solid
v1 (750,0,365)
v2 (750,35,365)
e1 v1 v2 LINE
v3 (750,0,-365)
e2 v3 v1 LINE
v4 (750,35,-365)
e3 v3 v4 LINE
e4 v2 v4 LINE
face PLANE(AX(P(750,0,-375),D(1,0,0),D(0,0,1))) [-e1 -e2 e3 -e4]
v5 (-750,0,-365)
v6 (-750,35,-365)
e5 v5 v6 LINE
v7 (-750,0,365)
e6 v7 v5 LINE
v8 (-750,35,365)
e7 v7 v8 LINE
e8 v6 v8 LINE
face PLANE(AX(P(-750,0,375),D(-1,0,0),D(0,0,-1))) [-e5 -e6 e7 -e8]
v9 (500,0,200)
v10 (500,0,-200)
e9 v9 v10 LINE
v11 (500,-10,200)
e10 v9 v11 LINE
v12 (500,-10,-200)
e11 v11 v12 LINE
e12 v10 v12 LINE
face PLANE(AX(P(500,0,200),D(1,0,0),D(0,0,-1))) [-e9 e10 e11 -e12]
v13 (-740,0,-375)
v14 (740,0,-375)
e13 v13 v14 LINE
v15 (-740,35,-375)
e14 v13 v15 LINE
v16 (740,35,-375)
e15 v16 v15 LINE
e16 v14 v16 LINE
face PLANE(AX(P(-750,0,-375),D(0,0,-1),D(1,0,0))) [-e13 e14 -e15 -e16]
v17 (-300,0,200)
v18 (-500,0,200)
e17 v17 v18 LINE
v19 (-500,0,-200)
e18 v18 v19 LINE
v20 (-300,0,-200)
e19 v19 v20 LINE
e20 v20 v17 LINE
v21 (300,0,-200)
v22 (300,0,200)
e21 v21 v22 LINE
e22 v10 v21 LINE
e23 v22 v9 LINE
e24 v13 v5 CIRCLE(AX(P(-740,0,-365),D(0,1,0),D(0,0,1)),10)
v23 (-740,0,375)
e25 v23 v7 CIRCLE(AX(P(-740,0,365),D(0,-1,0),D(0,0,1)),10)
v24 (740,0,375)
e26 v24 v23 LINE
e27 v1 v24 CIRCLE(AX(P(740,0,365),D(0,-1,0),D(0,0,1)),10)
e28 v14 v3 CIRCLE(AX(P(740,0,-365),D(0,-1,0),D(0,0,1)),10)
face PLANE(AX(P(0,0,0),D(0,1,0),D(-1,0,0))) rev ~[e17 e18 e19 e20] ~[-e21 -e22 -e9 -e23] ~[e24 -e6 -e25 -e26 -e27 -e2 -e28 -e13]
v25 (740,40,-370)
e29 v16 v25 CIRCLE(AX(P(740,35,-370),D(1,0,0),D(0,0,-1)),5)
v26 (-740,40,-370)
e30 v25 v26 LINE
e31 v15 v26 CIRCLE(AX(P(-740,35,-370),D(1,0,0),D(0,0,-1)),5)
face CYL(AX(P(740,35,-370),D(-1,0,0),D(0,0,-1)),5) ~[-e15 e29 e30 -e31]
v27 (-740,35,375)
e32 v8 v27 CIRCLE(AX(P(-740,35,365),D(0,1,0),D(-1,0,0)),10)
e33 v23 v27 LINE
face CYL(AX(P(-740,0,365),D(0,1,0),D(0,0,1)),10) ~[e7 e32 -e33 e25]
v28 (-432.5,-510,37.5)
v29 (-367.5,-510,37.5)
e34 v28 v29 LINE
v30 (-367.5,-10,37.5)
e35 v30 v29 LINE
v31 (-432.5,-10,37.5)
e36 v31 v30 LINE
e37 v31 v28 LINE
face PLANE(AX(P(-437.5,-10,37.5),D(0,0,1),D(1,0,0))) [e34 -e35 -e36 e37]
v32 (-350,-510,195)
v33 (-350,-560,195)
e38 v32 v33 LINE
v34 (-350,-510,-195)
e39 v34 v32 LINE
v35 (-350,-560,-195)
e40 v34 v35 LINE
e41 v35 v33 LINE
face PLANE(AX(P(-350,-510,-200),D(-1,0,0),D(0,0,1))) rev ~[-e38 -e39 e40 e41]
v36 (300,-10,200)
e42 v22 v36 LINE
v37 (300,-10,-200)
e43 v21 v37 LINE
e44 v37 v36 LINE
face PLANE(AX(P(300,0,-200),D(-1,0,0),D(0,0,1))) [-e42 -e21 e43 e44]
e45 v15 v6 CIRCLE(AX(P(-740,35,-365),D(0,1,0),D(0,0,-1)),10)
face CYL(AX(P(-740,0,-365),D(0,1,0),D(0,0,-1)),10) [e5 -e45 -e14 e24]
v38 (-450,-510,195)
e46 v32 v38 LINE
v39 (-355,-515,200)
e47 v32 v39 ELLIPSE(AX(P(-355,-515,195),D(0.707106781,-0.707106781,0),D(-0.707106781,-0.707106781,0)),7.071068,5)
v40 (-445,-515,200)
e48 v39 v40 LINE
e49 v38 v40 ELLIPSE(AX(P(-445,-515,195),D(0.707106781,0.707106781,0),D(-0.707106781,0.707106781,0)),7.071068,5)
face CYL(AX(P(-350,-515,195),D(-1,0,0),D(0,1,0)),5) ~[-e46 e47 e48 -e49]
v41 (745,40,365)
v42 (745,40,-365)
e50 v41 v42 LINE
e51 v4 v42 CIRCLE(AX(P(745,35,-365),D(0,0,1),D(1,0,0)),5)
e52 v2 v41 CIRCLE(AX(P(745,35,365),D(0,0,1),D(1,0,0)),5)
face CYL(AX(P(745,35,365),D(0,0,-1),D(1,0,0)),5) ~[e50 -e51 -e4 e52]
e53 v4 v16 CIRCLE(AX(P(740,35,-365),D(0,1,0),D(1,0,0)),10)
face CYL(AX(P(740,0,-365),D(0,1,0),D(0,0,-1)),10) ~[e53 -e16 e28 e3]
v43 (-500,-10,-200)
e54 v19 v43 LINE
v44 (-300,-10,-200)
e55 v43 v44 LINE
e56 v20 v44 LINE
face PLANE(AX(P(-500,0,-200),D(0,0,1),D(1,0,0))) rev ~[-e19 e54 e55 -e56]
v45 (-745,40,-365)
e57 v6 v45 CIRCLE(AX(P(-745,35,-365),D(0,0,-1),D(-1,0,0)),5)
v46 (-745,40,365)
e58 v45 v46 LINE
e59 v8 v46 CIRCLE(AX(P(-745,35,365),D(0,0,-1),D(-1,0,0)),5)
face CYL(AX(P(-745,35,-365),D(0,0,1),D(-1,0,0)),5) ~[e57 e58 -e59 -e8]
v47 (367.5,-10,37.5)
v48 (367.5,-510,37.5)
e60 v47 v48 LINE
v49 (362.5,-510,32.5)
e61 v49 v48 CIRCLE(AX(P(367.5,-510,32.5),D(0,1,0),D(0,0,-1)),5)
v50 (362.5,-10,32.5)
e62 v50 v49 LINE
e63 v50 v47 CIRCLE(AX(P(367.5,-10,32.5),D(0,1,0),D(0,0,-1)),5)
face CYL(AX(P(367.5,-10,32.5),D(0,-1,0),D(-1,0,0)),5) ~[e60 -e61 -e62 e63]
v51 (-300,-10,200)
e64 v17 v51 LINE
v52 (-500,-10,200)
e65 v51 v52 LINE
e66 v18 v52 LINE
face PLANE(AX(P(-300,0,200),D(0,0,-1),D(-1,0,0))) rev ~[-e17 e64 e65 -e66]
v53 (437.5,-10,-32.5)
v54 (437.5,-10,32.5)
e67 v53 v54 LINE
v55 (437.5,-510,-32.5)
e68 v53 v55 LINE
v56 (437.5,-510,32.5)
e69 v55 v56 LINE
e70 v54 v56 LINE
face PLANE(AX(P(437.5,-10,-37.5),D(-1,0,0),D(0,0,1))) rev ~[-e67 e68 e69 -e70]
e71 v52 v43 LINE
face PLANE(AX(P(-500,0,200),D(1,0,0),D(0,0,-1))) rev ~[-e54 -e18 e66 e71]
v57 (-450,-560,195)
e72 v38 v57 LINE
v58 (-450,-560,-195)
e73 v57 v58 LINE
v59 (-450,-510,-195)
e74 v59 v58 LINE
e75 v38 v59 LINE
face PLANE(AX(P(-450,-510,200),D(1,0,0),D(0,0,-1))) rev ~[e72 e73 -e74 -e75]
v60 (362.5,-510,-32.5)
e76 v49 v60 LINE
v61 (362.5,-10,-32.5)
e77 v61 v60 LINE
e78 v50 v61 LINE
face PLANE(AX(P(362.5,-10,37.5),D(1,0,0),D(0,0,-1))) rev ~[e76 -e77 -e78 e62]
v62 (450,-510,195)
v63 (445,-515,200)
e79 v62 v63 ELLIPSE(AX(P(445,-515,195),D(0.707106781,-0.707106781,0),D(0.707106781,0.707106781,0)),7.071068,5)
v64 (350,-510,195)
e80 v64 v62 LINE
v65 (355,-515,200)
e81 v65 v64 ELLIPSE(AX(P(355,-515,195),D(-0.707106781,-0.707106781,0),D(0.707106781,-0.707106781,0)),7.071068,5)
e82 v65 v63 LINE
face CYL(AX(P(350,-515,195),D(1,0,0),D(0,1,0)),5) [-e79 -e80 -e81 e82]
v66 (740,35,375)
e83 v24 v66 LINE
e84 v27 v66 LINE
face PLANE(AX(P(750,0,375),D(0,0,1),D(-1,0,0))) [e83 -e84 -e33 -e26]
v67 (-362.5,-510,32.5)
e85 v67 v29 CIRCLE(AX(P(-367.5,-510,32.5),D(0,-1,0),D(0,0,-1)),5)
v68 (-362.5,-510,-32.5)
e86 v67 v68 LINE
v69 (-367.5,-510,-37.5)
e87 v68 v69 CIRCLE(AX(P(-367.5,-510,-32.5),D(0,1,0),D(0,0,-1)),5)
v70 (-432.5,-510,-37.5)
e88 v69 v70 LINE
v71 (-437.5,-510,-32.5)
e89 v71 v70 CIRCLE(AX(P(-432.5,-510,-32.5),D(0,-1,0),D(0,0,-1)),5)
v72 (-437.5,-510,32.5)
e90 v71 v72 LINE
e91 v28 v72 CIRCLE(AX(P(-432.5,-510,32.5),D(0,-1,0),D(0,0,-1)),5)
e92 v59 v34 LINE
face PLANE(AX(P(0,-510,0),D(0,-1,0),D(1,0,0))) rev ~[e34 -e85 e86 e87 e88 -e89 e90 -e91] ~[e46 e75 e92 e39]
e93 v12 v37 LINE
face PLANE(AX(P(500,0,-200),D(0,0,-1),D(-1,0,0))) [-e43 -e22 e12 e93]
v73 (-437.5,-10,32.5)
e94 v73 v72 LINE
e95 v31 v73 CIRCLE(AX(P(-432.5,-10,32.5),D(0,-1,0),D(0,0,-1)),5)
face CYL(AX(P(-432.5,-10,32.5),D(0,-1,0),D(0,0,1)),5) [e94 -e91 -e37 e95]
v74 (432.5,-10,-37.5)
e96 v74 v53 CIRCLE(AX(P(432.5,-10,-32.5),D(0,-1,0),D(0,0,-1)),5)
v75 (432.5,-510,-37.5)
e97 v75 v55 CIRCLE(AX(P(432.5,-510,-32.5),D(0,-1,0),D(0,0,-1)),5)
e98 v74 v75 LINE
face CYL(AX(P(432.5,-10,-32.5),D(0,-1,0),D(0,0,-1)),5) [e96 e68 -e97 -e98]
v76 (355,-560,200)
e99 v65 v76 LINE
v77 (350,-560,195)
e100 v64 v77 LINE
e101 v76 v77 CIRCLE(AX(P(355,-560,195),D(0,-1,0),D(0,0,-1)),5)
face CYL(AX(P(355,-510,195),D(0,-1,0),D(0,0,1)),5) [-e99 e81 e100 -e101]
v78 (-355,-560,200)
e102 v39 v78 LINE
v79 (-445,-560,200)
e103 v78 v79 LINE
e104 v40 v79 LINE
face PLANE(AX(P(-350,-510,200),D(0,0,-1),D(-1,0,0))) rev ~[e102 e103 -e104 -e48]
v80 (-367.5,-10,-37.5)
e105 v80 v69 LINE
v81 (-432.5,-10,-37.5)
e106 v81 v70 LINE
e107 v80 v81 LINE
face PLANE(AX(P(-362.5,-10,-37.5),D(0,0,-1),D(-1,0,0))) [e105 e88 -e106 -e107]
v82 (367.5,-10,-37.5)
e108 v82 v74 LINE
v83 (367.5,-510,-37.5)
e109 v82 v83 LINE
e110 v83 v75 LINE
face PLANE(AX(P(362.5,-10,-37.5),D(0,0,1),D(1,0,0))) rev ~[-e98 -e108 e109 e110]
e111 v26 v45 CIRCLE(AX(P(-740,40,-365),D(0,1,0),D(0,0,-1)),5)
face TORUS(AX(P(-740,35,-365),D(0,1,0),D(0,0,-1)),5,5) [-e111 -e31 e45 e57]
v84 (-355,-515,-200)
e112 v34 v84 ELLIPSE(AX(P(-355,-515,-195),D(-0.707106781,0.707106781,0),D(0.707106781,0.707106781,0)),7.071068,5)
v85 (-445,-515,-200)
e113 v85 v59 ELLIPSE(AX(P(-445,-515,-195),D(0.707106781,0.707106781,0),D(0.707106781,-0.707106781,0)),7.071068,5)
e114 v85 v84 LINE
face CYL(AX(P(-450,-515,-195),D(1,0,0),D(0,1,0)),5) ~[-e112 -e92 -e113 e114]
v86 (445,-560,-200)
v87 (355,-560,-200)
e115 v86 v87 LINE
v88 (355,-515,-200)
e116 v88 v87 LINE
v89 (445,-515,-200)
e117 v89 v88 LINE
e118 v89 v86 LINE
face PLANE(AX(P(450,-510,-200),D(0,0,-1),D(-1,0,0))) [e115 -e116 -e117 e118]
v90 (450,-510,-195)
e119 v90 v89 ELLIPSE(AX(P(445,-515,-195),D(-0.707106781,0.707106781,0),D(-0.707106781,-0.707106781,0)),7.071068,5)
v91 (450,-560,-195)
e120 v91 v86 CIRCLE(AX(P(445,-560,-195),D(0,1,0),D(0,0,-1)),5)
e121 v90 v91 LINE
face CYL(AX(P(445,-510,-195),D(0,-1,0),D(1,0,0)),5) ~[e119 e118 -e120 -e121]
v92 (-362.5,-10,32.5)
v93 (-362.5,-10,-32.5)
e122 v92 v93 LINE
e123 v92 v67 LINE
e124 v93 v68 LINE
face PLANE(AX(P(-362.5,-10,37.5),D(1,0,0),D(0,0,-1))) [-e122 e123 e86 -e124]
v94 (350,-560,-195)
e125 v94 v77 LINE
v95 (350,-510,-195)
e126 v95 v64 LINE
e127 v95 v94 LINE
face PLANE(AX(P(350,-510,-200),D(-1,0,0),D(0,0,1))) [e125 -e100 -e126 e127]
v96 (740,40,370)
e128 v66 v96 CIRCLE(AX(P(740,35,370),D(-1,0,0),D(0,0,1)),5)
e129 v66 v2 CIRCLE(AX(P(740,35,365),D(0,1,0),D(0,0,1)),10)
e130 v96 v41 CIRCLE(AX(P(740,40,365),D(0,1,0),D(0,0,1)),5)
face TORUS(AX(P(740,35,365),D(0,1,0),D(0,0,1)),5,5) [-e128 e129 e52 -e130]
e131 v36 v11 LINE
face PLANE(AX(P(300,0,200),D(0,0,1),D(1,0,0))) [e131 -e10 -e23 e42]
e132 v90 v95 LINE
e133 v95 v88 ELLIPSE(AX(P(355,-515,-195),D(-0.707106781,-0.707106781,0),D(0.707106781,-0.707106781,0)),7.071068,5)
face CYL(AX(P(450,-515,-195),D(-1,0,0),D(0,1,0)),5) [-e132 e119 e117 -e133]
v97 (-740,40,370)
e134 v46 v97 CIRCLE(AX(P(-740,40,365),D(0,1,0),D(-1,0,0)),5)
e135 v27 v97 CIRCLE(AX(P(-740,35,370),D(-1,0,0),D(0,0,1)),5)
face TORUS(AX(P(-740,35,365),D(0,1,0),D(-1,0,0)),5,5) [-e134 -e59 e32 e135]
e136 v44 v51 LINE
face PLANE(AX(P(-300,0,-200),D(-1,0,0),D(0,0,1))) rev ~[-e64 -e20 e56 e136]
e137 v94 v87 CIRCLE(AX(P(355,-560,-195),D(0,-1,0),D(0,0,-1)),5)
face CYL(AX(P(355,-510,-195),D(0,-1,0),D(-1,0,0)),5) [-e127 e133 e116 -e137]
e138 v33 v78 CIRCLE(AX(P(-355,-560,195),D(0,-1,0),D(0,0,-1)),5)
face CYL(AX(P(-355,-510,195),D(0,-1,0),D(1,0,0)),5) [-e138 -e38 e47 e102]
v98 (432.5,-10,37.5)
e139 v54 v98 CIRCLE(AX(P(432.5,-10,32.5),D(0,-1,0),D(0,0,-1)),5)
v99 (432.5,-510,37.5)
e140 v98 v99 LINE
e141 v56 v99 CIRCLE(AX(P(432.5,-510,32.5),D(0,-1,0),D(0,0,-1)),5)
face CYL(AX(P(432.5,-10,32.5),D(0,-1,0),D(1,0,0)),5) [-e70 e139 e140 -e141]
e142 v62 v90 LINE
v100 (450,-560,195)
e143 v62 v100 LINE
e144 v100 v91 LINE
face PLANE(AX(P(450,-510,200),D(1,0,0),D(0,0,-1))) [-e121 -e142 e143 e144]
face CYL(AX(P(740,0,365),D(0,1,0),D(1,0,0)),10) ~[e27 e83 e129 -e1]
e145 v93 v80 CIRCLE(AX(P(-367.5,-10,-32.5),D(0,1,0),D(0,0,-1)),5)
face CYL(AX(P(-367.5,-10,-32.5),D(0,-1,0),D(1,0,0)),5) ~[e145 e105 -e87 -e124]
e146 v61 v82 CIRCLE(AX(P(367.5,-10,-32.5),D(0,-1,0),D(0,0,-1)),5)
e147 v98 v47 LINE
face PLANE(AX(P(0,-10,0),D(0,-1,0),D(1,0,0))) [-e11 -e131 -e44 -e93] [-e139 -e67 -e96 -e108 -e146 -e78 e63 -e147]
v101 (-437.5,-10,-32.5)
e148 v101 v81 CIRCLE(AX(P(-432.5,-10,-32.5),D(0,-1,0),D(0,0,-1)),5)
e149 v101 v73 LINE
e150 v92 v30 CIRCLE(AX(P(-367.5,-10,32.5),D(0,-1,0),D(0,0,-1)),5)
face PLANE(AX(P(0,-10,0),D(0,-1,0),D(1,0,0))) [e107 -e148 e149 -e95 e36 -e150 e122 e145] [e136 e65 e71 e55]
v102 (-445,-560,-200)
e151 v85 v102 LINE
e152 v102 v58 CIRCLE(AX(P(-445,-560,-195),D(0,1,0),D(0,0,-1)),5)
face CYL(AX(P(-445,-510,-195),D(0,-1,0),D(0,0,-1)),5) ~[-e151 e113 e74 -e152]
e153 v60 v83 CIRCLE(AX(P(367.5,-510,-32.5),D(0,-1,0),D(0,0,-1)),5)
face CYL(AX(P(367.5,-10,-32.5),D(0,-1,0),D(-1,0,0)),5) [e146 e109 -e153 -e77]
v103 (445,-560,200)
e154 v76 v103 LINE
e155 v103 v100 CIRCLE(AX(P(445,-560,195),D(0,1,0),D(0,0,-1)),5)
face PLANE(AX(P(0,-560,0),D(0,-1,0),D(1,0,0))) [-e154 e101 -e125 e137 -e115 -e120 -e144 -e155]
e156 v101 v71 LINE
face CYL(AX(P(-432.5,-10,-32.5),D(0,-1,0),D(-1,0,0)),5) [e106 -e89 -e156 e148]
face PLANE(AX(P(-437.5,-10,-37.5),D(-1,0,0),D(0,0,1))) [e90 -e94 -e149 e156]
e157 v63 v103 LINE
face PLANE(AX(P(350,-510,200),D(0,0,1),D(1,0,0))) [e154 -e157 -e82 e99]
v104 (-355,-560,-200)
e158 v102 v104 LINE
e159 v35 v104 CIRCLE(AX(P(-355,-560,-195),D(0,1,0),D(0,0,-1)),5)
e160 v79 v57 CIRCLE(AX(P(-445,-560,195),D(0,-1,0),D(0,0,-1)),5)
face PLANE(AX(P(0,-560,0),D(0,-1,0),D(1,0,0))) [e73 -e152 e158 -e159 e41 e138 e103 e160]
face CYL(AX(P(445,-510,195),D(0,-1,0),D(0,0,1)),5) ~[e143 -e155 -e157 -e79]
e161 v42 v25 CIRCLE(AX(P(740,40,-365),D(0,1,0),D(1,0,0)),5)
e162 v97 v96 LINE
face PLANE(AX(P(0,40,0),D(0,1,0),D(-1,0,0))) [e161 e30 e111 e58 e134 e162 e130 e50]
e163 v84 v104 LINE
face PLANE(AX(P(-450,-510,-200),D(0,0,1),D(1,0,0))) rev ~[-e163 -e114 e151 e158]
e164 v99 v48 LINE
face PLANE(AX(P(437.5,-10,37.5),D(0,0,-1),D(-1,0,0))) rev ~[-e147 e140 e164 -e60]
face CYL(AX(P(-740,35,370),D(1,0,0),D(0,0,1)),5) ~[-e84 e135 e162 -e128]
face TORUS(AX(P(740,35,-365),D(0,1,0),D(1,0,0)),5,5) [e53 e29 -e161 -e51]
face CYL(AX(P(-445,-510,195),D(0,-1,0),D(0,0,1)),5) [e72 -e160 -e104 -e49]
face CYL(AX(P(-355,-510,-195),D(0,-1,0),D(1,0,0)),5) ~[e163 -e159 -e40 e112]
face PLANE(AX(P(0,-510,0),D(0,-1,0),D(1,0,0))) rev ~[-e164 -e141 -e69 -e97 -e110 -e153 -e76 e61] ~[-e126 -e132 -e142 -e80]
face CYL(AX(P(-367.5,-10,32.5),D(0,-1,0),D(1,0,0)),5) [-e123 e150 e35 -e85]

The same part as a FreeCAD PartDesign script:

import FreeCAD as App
import Part
import Sketcher

V = App.Vector
Q = App.Units.Quantity


def edges_at(feature, points):
    """Names of the edges that pass closest to the given points."""
    edges = feature.Shape.Edges
    near = lambda p: min(range(len(edges)), key=lambda i: edges[i].distToShape(Part.Vertex(*p))[0])
    return sorted({f"Edge{near(p) + 1}" for p in points})


def add_polygon(sketch, points):
    """Adds a closed chain of lines whose ends are joined by coincident constraints."""
    first, n = sketch.GeometryCount, len(points)
    for a, b in zip(points, points[1:] + points[:1]):
        sketch.addGeometry(Part.LineSegment(App.Vector(*a, 0), App.Vector(*b, 0)), False)
    for i in range(n):
        sketch.addConstraint(Sketcher.Constraint("Coincident", first + i, 2, first + (i + 1) % n, 1))

doc = App.newDocument("Part")
params = doc.addObject("Spreadsheet::Sheet", "Params")
for row, (alias, value) in enumerate([
    ("sketch1_width", "1500 mm"),
    ("sketch1_height", "750 mm"),
    ("pad1_length", "40 mm"),
    ("fillet_radius", "10 mm"),
    ("fillet2_radius", "5 mm"),
    ("sketch2_width", "200 mm"),
    ("sketch2_height", "400 mm"),
    ("pad2_length", "10 mm"),
    ("sketch3_width", "75 mm"),
    ("pad3_length", "500 mm"),
    ("sketch4_width", "100 mm"),
    ("sketch4_height", "400 mm"),
    ("pad4_length", "50 mm"),
    ("fillet3_radius", "5 mm"),
    ("fillet4_radius", "5 mm"),
], start=1):
    params.set(f"A{row}", alias)
    params.set(f"B{row}", "=" + value)
    params.setAlias(f"B{row}", alias)

body = doc.addObject("PartDesign::Body", "Body")

# Sketch on XZ plane
sketch1 = body.newObject("Sketcher::SketchObject", "Sketch")
sketch1.AttachmentSupport = (doc.getObject("XZ_Plane"), [""])
sketch1.MapMode = "FlatFace"
add_polygon(sketch1, [(750, -375), (-750, -375), (-750, 375), (750, 375)])  # lines 0-3
sketch1.addConstraint(Sketcher.Constraint("Horizontal", 0))
sketch1.addConstraint(Sketcher.Constraint("Vertical", 1))
sketch1.addConstraint(Sketcher.Constraint("Horizontal", 2))
sketch1.addConstraint(Sketcher.Constraint("Vertical", 3))
sketch1.addConstraint(Sketcher.Constraint("Symmetric", 0, 2, 2, 2, -1, 1))
sketch1.addConstraint(Sketcher.Constraint("DistanceX", 0, 2, 0, 1, Q("1500 mm")))
sketch1.addConstraint(Sketcher.Constraint("DistanceY", 1, 1, 1, 2, Q("750 mm")))
sketch1.setExpression("Constraints[9]", "Params.sketch1_width")
sketch1.setExpression("Constraints[10]", "Params.sketch1_height")
pad1 = body.newObject("PartDesign::Pad", "Pad")
pad1.Profile = sketch1
pad1.setExpression("Length", "Params.pad1_length")
pad1.Reversed = True
doc.recompute()

fillet = body.newObject("PartDesign::Fillet", "Fillet")
fillet.Base = (pad1, edges_at(pad1, [
    (750, 20, 375),
    (750, 20, -375),
    (-750, 20, -375),
    (-750, 20, 375),
]))
fillet.setExpression("Radius", "Params.fillet_radius")
doc.recompute()

fillet2 = body.newObject("PartDesign::Fillet", "Fillet001")
fillet2.Base = (fillet, edges_at(fillet, [
    (-747.071, 40, -372.071),
    (-750, 40, 0),
    (-747.071, 40, 372.071),
    (0, 40, 375),
    (747.071, 40, 372.071),
    (750, 40, 0),
    (747.071, 40, -372.071),
    (0, 40, -375),
]))
fillet2.setExpression("Radius", "Params.fillet2_radius")

# Sketch on XZ plane
sketch2 = body.newObject("Sketcher::SketchObject", "Sketch001")
sketch2.AttachmentSupport = (doc.getObject("XZ_Plane"), [""])
sketch2.MapMode = "FlatFace"
add_polygon(sketch2, [(500, 200), (300, 200), (300, -200), (500, -200)])  # lines 0-3
add_polygon(sketch2, [(-300, -200), (-300, 200), (-500, 200), (-500, -200)])  # lines 4-7
sketch2.addConstraint(Sketcher.Constraint("Horizontal", 0))
sketch2.addConstraint(Sketcher.Constraint("Vertical", 1))
sketch2.addConstraint(Sketcher.Constraint("Horizontal", 2))
sketch2.addConstraint(Sketcher.Constraint("Vertical", 3))
sketch2.addConstraint(Sketcher.Constraint("Vertical", 4))
sketch2.addConstraint(Sketcher.Constraint("Horizontal", 5))
sketch2.addConstraint(Sketcher.Constraint("Vertical", 6))
sketch2.addConstraint(Sketcher.Constraint("Horizontal", 7))
sketch2.addConstraint(Sketcher.Constraint("Symmetric", 1, 2, 4, 2, -1, 1))
sketch2.addConstraint(Sketcher.Constraint("Symmetric", 3, 2, 6, 2, -1, 1))
sketch2.addConstraint(Sketcher.Constraint("Horizontal", 3, 2, 4, 2))
sketch2.addConstraint(Sketcher.Constraint("DistanceX", 0, 2, 0, 1, Q("200 mm")))
sketch2.addConstraint(Sketcher.Constraint("DistanceY", 1, 2, 1, 1, Q("400 mm")))
sketch2.addConstraint(Sketcher.Constraint("DistanceX", -1, 1, 0, 2, Q("300 mm")))
sketch2.setExpression("Constraints[19]", "Params.sketch2_width")
sketch2.setExpression("Constraints[20]", "Params.sketch2_height")
pad2 = body.newObject("PartDesign::Pad", "Pad001")
pad2.Profile = sketch2
pad2.setExpression("Length", "Params.pad2_length")

# Sketch on XZ plane
sketch3 = body.newObject("Sketcher::SketchObject", "Sketch002")
sketch3.AttachmentSupport = (doc.getObject("XZ_Plane"), [""])
sketch3.MapMode = "FlatFace"
sketch3.AttachmentOffset = App.Placement(V(0, 0, 10), App.Rotation())
add_polygon(sketch3, [(362, 38), (362, -38), (438, -38), (438, 38)])  # lines 0-3
add_polygon(sketch3, [(-438, -38), (-362, -38), (-362, 38), (-438, 38)])  # lines 4-7
sketch3.addConstraint(Sketcher.Constraint("Vertical", 0))
sketch3.addConstraint(Sketcher.Constraint("Horizontal", 1))
sketch3.addConstraint(Sketcher.Constraint("Vertical", 2))
sketch3.addConstraint(Sketcher.Constraint("Horizontal", 3))
sketch3.addConstraint(Sketcher.Constraint("Horizontal", 4))
sketch3.addConstraint(Sketcher.Constraint("Vertical", 5))
sketch3.addConstraint(Sketcher.Constraint("Horizontal", 6))
sketch3.addConstraint(Sketcher.Constraint("Vertical", 7))
sketch3.addConstraint(Sketcher.Constraint("Symmetric", 3, 2, 4, 2, -1, 1))
sketch3.addConstraint(Sketcher.Constraint("Symmetric", 1, 2, 6, 2, -1, 1))
sketch3.addConstraint(Sketcher.Constraint("Horizontal", 1, 2, 4, 2))
sketch3.addConstraint(Sketcher.Constraint("Equal", 6, 0))
sketch3.addConstraint(Sketcher.Constraint("DistanceX", 1, 1, 1, 2, Q("75 mm")))
sketch3.addConstraint(Sketcher.Constraint("DistanceX", 4, 2, 0, 2, Q("725 mm")))
sketch3.setExpression("Constraints[20]", "Params.sketch3_width")
pad3 = body.newObject("PartDesign::Pad", "Pad002")
pad3.Profile = sketch3
pad3.setExpression("Length", "Params.pad3_length")

# Sketch on XZ plane
sketch4 = body.newObject("Sketcher::SketchObject", "Sketch003")
sketch4.AttachmentSupport = (doc.getObject("XZ_Plane"), [""])
sketch4.MapMode = "FlatFace"
sketch4.AttachmentOffset = App.Placement(V(0, 0, 510), App.Rotation())
add_polygon(sketch4, [(450, 200), (350, 200), (350, -200), (450, -200)])  # lines 0-3
add_polygon(sketch4, [(-350, -200), (-350, 200), (-450, 200), (-450, -200)])  # lines 4-7
sketch4.addConstraint(Sketcher.Constraint("Horizontal", 0))
sketch4.addConstraint(Sketcher.Constraint("Vertical", 1))
sketch4.addConstraint(Sketcher.Constraint("Horizontal", 2))
sketch4.addConstraint(Sketcher.Constraint("Vertical", 3))
sketch4.addConstraint(Sketcher.Constraint("Vertical", 4))
sketch4.addConstraint(Sketcher.Constraint("Horizontal", 5))
sketch4.addConstraint(Sketcher.Constraint("Vertical", 6))
sketch4.addConstraint(Sketcher.Constraint("Horizontal", 7))
sketch4.addConstraint(Sketcher.Constraint("Symmetric", 1, 2, 4, 2, -1, 1))
sketch4.addConstraint(Sketcher.Constraint("Symmetric", 3, 2, 6, 2, -1, 1))
sketch4.addConstraint(Sketcher.Constraint("Horizontal", 3, 2, 4, 2))
sketch4.addConstraint(Sketcher.Constraint("DistanceX", 0, 2, 0, 1, Q("100 mm")))
sketch4.addConstraint(Sketcher.Constraint("DistanceY", 1, 2, 1, 1, Q("400 mm")))
sketch4.addConstraint(Sketcher.Constraint("DistanceX", -1, 1, 0, 2, Q("350 mm")))
sketch4.setExpression("Constraints[19]", "Params.sketch4_width")
sketch4.setExpression("Constraints[20]", "Params.sketch4_height")
pad4 = body.newObject("PartDesign::Pad", "Pad003")
pad4.Profile = sketch4
pad4.setExpression("Length", "Params.pad4_length")
doc.recompute()

fillet3 = body.newObject("PartDesign::Fillet", "Fillet002")
fillet3.Base = (pad4, edges_at(pad4, [
    (437.5, -260, -37.5),
    (362.5, -260, -37.5),
    (437.5, -260, 37.5),
    (-362.5, -260, -37.5),
    (-362.5, -260, 37.5),
    (-437.5, -260, -37.5),
    (362.5, -260, 37.5),
    (-437.5, -260, 37.5),
]))
fillet3.setExpression("Radius", "Params.fillet3_radius")
doc.recompute()

fillet4 = body.newObject("PartDesign::Fillet", "Fillet003")
fillet4.Base = (fillet3, edges_at(fillet3, [
    (-400, -510, 200),
    (-450, -535, 200),
    (-350, -535, 200),
    (350, -535, 200),
    (400, -510, 200),
    (450, -535, 200),
    (350, -535, -200),
    (-450, -535, -200),
    (-400, -510, -200),
    (-350, -535, -200),
    (400, -510, -200),
    (450, -535, -200),
]))
fillet4.setExpression("Radius", "Params.fillet4_radius")

doc.recompute()
